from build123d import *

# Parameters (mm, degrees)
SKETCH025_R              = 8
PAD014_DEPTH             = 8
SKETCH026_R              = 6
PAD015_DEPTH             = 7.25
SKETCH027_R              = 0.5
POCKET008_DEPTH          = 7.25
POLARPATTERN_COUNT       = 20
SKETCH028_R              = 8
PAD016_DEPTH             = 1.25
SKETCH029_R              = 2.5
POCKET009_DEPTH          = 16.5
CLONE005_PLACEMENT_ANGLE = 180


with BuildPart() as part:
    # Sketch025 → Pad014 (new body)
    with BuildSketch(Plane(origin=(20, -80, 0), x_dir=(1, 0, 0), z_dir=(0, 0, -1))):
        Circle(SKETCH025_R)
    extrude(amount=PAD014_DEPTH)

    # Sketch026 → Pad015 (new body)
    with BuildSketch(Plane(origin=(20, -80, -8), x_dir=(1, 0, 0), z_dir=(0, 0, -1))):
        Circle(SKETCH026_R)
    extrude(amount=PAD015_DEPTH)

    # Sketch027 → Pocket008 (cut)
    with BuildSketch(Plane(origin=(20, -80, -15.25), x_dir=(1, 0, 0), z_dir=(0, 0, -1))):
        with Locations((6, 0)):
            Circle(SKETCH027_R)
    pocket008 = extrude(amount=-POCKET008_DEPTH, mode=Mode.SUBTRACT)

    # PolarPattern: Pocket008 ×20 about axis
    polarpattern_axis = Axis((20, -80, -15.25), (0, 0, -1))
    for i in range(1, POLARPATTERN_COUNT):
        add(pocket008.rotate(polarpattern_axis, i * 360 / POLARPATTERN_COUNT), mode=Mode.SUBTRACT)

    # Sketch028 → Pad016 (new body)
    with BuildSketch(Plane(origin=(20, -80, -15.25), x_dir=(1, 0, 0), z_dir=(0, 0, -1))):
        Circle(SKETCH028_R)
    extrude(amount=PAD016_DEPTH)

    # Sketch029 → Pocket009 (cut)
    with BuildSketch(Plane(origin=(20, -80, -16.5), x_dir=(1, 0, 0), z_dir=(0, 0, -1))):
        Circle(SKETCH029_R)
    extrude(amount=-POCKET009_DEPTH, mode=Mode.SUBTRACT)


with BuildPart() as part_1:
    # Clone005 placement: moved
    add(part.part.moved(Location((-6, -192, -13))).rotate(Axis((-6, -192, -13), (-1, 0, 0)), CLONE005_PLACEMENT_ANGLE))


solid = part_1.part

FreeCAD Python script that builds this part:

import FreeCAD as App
import Part
import Sketcher

V = App.Vector
Q = App.Units.Quantity

doc = App.newDocument("Part")
body = doc.addObject("PartDesign::Body", "Body")

# Sketch on XY plane
sketch1 = body.newObject("Sketcher::SketchObject", "Sketch")
sketch1.AttachmentSupport = (doc.getObject("XY_Plane"), [""])
sketch1.MapMode = "FlatFace"
sketch1.addGeometry(Part.Circle(V(20, -80, 0), V(0, 0, 1), 8), False)
sketch1.addConstraint(Sketcher.Constraint("Diameter", 0, Q("16 mm")))
sketch1.addConstraint(Sketcher.Constraint("DistanceX", -1, 1, 0, 3, Q("20 mm")))
sketch1.addConstraint(Sketcher.Constraint("DistanceY", 0, 3, -1, 1, Q("80 mm")))
pad1 = body.newObject("PartDesign::Pad", "Pad")
pad1.Profile = sketch1
pad1.Length = 8
pad1.Reversed = True

# Sketch on XY plane
sketch2 = body.newObject("Sketcher::SketchObject", "Sketch001")
sketch2.AttachmentSupport = (doc.getObject("XY_Plane"), [""])
sketch2.MapMode = "FlatFace"
sketch2.AttachmentOffset = App.Placement(V(0, 0, -8), App.Rotation())
sketch2.addGeometry(Part.Circle(V(20, -80, 0), V(0, 0, 1), 6), False)
sketch2.addConstraint(Sketcher.Constraint("Diameter", 0, Q("12 mm")))
sketch2.addConstraint(Sketcher.Constraint("DistanceX", -1, 1, 0, 3, Q("20 mm")))
sketch2.addConstraint(Sketcher.Constraint("DistanceY", 0, 3, -1, 1, Q("80 mm")))
pad2 = body.newObject("PartDesign::Pad", "Pad001")
pad2.Profile = sketch2
pad2.Length = 7.25
pad2.Reversed = True

# Sketch on XY plane
sketch3 = body.newObject("Sketcher::SketchObject", "Sketch002")
sketch3.AttachmentSupport = (doc.getObject("XY_Plane"), [""])
sketch3.MapMode = "FlatFace"
sketch3.AttachmentOffset = App.Placement(V(0, 0, -15.25), App.Rotation())
sketch3.addGeometry(Part.Circle(V(26, -80, 0), V(0, 0, 1), 0.5), False)
sketch3.addConstraint(Sketcher.Constraint("Diameter", 0, Q("1 mm")))
sketch3.addConstraint(Sketcher.Constraint("DistanceX", -1, 1, 0, 3, Q("26 mm")))
sketch3.addConstraint(Sketcher.Constraint("DistanceY", 0, 3, -1, 1, Q("80 mm")))
pocket1 = body.newObject("PartDesign::Pocket", "Pocket")
pocket1.Profile = sketch3
pocket1.Length = 7.25
pocket1.Reversed = True
doc.recompute()

datumline = body.newObject("PartDesign::Line", "DatumLine")
datumline.Placement = App.Placement(V(20, -80, 0), App.Rotation(V(0, 0, 1), V(0, 0, -1)))
polarpattern = body.newObject("PartDesign::PolarPattern", "PolarPattern")
polarpattern.Originals = [pocket1]
polarpattern.Axis = (datumline, [""])
polarpattern.Angle = 360
polarpattern.Occurrences = 20
body.Tip = polarpattern

# Sketch on XY plane
sketch4 = body.newObject("Sketcher::SketchObject", "Sketch003")
sketch4.AttachmentSupport = (doc.getObject("XY_Plane"), [""])
sketch4.MapMode = "FlatFace"
sketch4.AttachmentOffset = App.Placement(V(0, 0, -15.25), App.Rotation())
sketch4.addGeometry(Part.Circle(V(20, -80, 0), V(0, 0, 1), 8), False)
sketch4.addConstraint(Sketcher.Constraint("Diameter", 0, Q("16 mm")))
sketch4.addConstraint(Sketcher.Constraint("DistanceX", -1, 1, 0, 3, Q("20 mm")))
sketch4.addConstraint(Sketcher.Constraint("DistanceY", 0, 3, -1, 1, Q("80 mm")))
pad3 = body.newObject("PartDesign::Pad", "Pad002")
pad3.Profile = sketch4
pad3.Length = 1.25
pad3.Reversed = True

# Sketch on XY plane
sketch5 = body.newObject("Sketcher::SketchObject", "Sketch004")
sketch5.AttachmentSupport = (doc.getObject("XY_Plane"), [""])
sketch5.MapMode = "FlatFace"
sketch5.AttachmentOffset = App.Placement(V(0, 0, -16.5), App.Rotation())
sketch5.addGeometry(Part.Circle(V(20, -80, 0), V(0, 0, 1), 2.5), False)
sketch5.addConstraint(Sketcher.Constraint("Diameter", 0, Q("5 mm")))
sketch5.addConstraint(Sketcher.Constraint("DistanceX", -1, 1, 0, 3, Q("20 mm")))
sketch5.addConstraint(Sketcher.Constraint("DistanceY", 0, 3, -1, 1, Q("80 mm")))
pocket2 = body.newObject("PartDesign::Pocket", "Pocket001")
pocket2.Profile = sketch5
pocket2.Length = 16.5
pocket2.Reversed = True
body2 = doc.addObject("PartDesign::Body", "Body001")
doc.recompute()

body.Placement = App.Placement(V(-6, -192, -13), App.Rotation(V(-1, 0, 0), 180))
boolean = body2.newObject("PartDesign::Boolean", "Boolean")
boolean.Type = "Fuse"
boolean.addObjects([body])

doc.recompute()
